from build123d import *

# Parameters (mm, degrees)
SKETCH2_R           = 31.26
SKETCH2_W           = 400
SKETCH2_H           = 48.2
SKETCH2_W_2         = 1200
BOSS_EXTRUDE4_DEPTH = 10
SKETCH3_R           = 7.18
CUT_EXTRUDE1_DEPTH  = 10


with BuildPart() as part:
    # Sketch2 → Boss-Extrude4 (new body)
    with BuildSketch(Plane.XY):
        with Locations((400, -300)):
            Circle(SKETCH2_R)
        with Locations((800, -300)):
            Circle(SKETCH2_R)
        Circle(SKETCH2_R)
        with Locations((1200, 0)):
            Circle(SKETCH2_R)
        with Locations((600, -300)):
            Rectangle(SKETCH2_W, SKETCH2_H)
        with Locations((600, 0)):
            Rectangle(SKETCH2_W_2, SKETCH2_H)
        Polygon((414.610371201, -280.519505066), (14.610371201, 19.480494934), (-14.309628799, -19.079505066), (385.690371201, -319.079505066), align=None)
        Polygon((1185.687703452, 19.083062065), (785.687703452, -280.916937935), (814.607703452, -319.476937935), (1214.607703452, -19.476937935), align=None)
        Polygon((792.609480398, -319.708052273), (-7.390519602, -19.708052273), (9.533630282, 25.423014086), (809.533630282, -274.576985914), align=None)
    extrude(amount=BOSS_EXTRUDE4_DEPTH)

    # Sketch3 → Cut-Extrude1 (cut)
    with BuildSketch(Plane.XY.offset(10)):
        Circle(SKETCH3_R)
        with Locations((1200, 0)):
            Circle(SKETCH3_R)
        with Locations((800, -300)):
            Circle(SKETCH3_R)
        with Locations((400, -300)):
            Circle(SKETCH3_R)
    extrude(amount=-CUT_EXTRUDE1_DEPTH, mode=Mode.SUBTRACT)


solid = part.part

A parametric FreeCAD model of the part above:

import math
import FreeCAD as App
import Part
import Sketcher

doc = App.newDocument("Part")
body = doc.addObject("PartDesign::Body", "Body")

# Sketch on XY plane
sketch1 = doc.addObject("Sketcher::SketchObject", "Sketch")
body.addObject(sketch1)
sketch1.AttachmentSupport = (doc.XY_Plane, [""])
sketch1.MapMode = "FlatFace"
sketch1.addGeometry(Part.LineSegment(App.Vector(2, -31, 0), App.Vector(370, -307, 0)), False)
sketch1.addGeometry(Part.ArcOfCircle(Part.Circle(App.Vector(400, -300, 0), App.Vector(0, 0, 1), 31), math.radians(-167), math.radians(-50)), False)
sketch1.addGeometry(Part.LineSegment(App.Vector(420, -324, 0), App.Vector(780, -324, 0)), False)
sketch1.addGeometry(Part.ArcOfCircle(Part.Circle(App.Vector(800, -300, 0), App.Vector(0, 0, 1), 31), math.radians(-130), math.radians(-14)), False)
sketch1.addGeometry(Part.LineSegment(App.Vector(830, -308, 0), App.Vector(1199, -31, 0)), False)
sketch1.addGeometry(Part.ArcOfCircle(Part.Circle(App.Vector(1200, 0, 0), App.Vector(0, 0, 1), 31), math.radians(-92), math.radians(130)), False)
sketch1.addGeometry(Part.LineSegment(App.Vector(1180, 24, 0), App.Vector(20, 24, 0)), False)
sketch1.addGeometry(Part.ArcOfCircle(Part.Circle(App.Vector(0, 0, 0), App.Vector(0, 0, 1), 31), math.radians(50), math.radians(273)), False)
sketch1.addGeometry(Part.LineSegment(App.Vector(399, -269, 0), App.Vector(141, -75, 0)), False)
sketch1.addGeometry(Part.LineSegment(App.Vector(141, -75, 0), App.Vector(676, -276, 0)), False)
sketch1.addGeometry(Part.LineSegment(App.Vector(676, -276, 0), App.Vector(420, -276, 0)), False)
sketch1.addGeometry(Part.ArcOfCircle(Part.Circle(App.Vector(400, -300, 0), App.Vector(0, 0, 1), 31), math.radians(50), math.radians(92)), False)
sketch1.addGeometry(Part.ArcOfCircle(Part.Circle(App.Vector(800, -300, 0), App.Vector(0, 0, 1), 31), math.radians(86.61), math.radians(99.15)), False)
sketch1.addGeometry(Part.LineSegment(App.Vector(795, -269, 0), App.Vector(142, -24, 0)), False)
sketch1.addGeometry(Part.LineSegment(App.Vector(142, -24, 0), App.Vector(1128, -24, 0)), False)
sketch1.addGeometry(Part.LineSegment(App.Vector(1128, -24, 0), App.Vector(802, -269, 0)), False)
sketch1.addConstraint(Sketcher.Constraint("Coincident", 0, 2, 1, 1))
sketch1.addConstraint(Sketcher.Constraint("Coincident", 1, 2, 2, 1))
sketch1.addConstraint(Sketcher.Constraint("Coincident", 2, 2, 3, 1))
sketch1.addConstraint(Sketcher.Constraint("Coincident", 3, 2, 4, 1))
sketch1.addConstraint(Sketcher.Constraint("Coincident", 4, 2, 5, 1))
sketch1.addConstraint(Sketcher.Constraint("Coincident", 5, 2, 6, 1))
sketch1.addConstraint(Sketcher.Constraint("Coincident", 6, 2, 7, 1))
sketch1.addConstraint(Sketcher.Constraint("Coincident", 7, 2, 0, 1))
sketch1.addConstraint(Sketcher.Constraint("Coincident", 8, 2, 9, 1))
sketch1.addConstraint(Sketcher.Constraint("Coincident", 9, 2, 10, 1))
sketch1.addConstraint(Sketcher.Constraint("Coincident", 10, 2, 11, 1))
sketch1.addConstraint(Sketcher.Constraint("Coincident", 11, 2, 8, 1))
sketch1.addConstraint(Sketcher.Constraint("Coincident", 12, 2, 13, 1))
sketch1.addConstraint(Sketcher.Constraint("Coincident", 13, 2, 14, 1))
sketch1.addConstraint(Sketcher.Constraint("Coincident", 14, 2, 15, 1))
sketch1.addConstraint(Sketcher.Constraint("Coincident", 15, 2, 12, 1))
sketch1.addConstraint(Sketcher.Constraint("Horizontal", 2))
sketch1.addConstraint(Sketcher.Constraint("Horizontal", 6))
sketch1.addConstraint(Sketcher.Constraint("Horizontal", 10))
sketch1.addConstraint(Sketcher.Constraint("Horizontal", 14))
sketch1.addConstraint(Sketcher.Constraint("Coincident", 7, 3, -1, 1))
sketch1.addConstraint(Sketcher.Constraint("Coincident", 11, 3, 1, 3))
sketch1.addConstraint(Sketcher.Constraint("Coincident", 12, 3, 3, 3))
sketch1.addConstraint(Sketcher.Constraint("Equal", 1, 3))
sketch1.addConstraint(Sketcher.Constraint("Equal", 3, 5))
sketch1.addConstraint(Sketcher.Constraint("Equal", 5, 7))
sketch1.addConstraint(Sketcher.Constraint("Equal", 7, 11))
sketch1.addConstraint(Sketcher.Constraint("Equal", 11, 12))
sketch1.addConstraint(Sketcher.Constraint("PointOnObject", 5, 3, -1))
sketch1.addConstraint(Sketcher.Constraint("Parallel", 0, 8))
sketch1.addConstraint(Sketcher.Constraint("Parallel", 9, 13))
sketch1.addConstraint(Sketcher.Constraint("Parallel", 4, 15))
sketch1.addConstraint(Sketcher.Constraint("Horizontal", 1, 3, 3, 3))
sketch1.addConstraint(Sketcher.Constraint("Vertical", 1, 2, 10, 2))
sketch1.addConstraint(Sketcher.Constraint("Radius", 1, 31.26))
sketch1.addConstraint(Sketcher.Constraint("DistanceX", -1, 1, 1, 3, 400.0))
sketch1.addConstraint(Sketcher.Constraint("DistanceY", 1, 3, -1, 1, 300.0))
sketch1.addConstraint(Sketcher.Constraint("DistanceX", -1, 1, 3, 3, 800.0))
sketch1.addConstraint(Sketcher.Constraint("DistanceX", -1, 1, 5, 3, 1200.0))
sketch1.addConstraint(Sketcher.Constraint("DistanceX", 6, 2, 1, 2, 400.0))
sketch1.addConstraint(Sketcher.Constraint("DistanceY", 1, 2, -1, 1, 324.1))
sketch1.addConstraint(Sketcher.Constraint("DistanceY", 13, 2, -1, 1, 24.1))
sketch1.addConstraint(Sketcher.Constraint("DistanceX", -1, 1, 13, 2, 141.595001))
sketch1.addConstraint(Sketcher.Constraint("DistanceY", 4, 2, -1, 1, 31.241399))
sketch1.addConstraint(Sketcher.Constraint("DistanceX", 12, 2, 3, 2, 35.264598))
sketch1.addConstraint(Sketcher.Constraint("Distance", 0, 459.582449))
sketch1.addConstraint(Sketcher.Constraint("Distance", 4, 460.785131))
sketch1.addConstraint(Sketcher.Constraint("DistanceX", 10, 2, 10, 1, 255.878774))
sketch1.addConstraint(Sketcher.Constraint("DistanceX", 14, 1, 14, 2, 986.515286))
sketch1.addConstraint(Sketcher.Constraint("DistanceX", -1, 1, 0, 2, 369.523351))
sketch1.addConstraint(Sketcher.Constraint("DistanceX", -1, 1, 11, 2, 398.928841))
pad1 = doc.addObject("PartDesign::Pad", "Pad")
body.addObject(pad1)
pad1.Profile = sketch1
pad1.Length = 10

# Sketch on XY plane
sketch2 = doc.addObject("Sketcher::SketchObject", "Sketch001")
body.addObject(sketch2)
sketch2.AttachmentSupport = (doc.XY_Plane, [""])
sketch2.MapMode = "FlatFace"
sketch2.AttachmentOffset = App.Placement(App.Vector(0, 0, 10), App.Rotation())
sketch2.addGeometry(Part.Circle(App.Vector(0, 0, 0), App.Vector(0, 0, 1), 7), False)
sketch2.addGeometry(Part.Circle(App.Vector(1200, 0, 0), App.Vector(0, 0, 1), 7), False)
sketch2.addGeometry(Part.Circle(App.Vector(800, -300, 0), App.Vector(0, 0, 1), 7), False)
sketch2.addGeometry(Part.Circle(App.Vector(400, -300, 0), App.Vector(0, 0, 1), 7), False)
sketch2.addConstraint(Sketcher.Constraint("Coincident", 0, 3, -1, 1))
sketch2.addConstraint(Sketcher.Constraint("Equal", 0, 1))
sketch2.addConstraint(Sketcher.Constraint("Equal", 1, 2))
sketch2.addConstraint(Sketcher.Constraint("Equal", 2, 3))
sketch2.addConstraint(Sketcher.Constraint("PointOnObject", 1, 3, -1))
sketch2.addConstraint(Sketcher.Constraint("Horizontal", 2, 3, 3, 3))
sketch2.addConstraint(Sketcher.Constraint("Diameter", 0, 14.36))
sketch2.addConstraint(Sketcher.Constraint("DistanceX", -1, 1, 1, 3, 1200.0))
sketch2.addConstraint(Sketcher.Constraint("DistanceX", -1, 1, 2, 3, 800.0))
sketch2.addConstraint(Sketcher.Constraint("DistanceY", 2, 3, -1, 1, 300.0))
sketch2.addConstraint(Sketcher.Constraint("DistanceX", -1, 1, 3, 3, 400.0))
pocket1 = doc.addObject("PartDesign::Pocket", "Pocket")
body.addObject(pocket1)
pocket1.Profile = sketch2
pocket1.Length = 10

doc.recompute()
